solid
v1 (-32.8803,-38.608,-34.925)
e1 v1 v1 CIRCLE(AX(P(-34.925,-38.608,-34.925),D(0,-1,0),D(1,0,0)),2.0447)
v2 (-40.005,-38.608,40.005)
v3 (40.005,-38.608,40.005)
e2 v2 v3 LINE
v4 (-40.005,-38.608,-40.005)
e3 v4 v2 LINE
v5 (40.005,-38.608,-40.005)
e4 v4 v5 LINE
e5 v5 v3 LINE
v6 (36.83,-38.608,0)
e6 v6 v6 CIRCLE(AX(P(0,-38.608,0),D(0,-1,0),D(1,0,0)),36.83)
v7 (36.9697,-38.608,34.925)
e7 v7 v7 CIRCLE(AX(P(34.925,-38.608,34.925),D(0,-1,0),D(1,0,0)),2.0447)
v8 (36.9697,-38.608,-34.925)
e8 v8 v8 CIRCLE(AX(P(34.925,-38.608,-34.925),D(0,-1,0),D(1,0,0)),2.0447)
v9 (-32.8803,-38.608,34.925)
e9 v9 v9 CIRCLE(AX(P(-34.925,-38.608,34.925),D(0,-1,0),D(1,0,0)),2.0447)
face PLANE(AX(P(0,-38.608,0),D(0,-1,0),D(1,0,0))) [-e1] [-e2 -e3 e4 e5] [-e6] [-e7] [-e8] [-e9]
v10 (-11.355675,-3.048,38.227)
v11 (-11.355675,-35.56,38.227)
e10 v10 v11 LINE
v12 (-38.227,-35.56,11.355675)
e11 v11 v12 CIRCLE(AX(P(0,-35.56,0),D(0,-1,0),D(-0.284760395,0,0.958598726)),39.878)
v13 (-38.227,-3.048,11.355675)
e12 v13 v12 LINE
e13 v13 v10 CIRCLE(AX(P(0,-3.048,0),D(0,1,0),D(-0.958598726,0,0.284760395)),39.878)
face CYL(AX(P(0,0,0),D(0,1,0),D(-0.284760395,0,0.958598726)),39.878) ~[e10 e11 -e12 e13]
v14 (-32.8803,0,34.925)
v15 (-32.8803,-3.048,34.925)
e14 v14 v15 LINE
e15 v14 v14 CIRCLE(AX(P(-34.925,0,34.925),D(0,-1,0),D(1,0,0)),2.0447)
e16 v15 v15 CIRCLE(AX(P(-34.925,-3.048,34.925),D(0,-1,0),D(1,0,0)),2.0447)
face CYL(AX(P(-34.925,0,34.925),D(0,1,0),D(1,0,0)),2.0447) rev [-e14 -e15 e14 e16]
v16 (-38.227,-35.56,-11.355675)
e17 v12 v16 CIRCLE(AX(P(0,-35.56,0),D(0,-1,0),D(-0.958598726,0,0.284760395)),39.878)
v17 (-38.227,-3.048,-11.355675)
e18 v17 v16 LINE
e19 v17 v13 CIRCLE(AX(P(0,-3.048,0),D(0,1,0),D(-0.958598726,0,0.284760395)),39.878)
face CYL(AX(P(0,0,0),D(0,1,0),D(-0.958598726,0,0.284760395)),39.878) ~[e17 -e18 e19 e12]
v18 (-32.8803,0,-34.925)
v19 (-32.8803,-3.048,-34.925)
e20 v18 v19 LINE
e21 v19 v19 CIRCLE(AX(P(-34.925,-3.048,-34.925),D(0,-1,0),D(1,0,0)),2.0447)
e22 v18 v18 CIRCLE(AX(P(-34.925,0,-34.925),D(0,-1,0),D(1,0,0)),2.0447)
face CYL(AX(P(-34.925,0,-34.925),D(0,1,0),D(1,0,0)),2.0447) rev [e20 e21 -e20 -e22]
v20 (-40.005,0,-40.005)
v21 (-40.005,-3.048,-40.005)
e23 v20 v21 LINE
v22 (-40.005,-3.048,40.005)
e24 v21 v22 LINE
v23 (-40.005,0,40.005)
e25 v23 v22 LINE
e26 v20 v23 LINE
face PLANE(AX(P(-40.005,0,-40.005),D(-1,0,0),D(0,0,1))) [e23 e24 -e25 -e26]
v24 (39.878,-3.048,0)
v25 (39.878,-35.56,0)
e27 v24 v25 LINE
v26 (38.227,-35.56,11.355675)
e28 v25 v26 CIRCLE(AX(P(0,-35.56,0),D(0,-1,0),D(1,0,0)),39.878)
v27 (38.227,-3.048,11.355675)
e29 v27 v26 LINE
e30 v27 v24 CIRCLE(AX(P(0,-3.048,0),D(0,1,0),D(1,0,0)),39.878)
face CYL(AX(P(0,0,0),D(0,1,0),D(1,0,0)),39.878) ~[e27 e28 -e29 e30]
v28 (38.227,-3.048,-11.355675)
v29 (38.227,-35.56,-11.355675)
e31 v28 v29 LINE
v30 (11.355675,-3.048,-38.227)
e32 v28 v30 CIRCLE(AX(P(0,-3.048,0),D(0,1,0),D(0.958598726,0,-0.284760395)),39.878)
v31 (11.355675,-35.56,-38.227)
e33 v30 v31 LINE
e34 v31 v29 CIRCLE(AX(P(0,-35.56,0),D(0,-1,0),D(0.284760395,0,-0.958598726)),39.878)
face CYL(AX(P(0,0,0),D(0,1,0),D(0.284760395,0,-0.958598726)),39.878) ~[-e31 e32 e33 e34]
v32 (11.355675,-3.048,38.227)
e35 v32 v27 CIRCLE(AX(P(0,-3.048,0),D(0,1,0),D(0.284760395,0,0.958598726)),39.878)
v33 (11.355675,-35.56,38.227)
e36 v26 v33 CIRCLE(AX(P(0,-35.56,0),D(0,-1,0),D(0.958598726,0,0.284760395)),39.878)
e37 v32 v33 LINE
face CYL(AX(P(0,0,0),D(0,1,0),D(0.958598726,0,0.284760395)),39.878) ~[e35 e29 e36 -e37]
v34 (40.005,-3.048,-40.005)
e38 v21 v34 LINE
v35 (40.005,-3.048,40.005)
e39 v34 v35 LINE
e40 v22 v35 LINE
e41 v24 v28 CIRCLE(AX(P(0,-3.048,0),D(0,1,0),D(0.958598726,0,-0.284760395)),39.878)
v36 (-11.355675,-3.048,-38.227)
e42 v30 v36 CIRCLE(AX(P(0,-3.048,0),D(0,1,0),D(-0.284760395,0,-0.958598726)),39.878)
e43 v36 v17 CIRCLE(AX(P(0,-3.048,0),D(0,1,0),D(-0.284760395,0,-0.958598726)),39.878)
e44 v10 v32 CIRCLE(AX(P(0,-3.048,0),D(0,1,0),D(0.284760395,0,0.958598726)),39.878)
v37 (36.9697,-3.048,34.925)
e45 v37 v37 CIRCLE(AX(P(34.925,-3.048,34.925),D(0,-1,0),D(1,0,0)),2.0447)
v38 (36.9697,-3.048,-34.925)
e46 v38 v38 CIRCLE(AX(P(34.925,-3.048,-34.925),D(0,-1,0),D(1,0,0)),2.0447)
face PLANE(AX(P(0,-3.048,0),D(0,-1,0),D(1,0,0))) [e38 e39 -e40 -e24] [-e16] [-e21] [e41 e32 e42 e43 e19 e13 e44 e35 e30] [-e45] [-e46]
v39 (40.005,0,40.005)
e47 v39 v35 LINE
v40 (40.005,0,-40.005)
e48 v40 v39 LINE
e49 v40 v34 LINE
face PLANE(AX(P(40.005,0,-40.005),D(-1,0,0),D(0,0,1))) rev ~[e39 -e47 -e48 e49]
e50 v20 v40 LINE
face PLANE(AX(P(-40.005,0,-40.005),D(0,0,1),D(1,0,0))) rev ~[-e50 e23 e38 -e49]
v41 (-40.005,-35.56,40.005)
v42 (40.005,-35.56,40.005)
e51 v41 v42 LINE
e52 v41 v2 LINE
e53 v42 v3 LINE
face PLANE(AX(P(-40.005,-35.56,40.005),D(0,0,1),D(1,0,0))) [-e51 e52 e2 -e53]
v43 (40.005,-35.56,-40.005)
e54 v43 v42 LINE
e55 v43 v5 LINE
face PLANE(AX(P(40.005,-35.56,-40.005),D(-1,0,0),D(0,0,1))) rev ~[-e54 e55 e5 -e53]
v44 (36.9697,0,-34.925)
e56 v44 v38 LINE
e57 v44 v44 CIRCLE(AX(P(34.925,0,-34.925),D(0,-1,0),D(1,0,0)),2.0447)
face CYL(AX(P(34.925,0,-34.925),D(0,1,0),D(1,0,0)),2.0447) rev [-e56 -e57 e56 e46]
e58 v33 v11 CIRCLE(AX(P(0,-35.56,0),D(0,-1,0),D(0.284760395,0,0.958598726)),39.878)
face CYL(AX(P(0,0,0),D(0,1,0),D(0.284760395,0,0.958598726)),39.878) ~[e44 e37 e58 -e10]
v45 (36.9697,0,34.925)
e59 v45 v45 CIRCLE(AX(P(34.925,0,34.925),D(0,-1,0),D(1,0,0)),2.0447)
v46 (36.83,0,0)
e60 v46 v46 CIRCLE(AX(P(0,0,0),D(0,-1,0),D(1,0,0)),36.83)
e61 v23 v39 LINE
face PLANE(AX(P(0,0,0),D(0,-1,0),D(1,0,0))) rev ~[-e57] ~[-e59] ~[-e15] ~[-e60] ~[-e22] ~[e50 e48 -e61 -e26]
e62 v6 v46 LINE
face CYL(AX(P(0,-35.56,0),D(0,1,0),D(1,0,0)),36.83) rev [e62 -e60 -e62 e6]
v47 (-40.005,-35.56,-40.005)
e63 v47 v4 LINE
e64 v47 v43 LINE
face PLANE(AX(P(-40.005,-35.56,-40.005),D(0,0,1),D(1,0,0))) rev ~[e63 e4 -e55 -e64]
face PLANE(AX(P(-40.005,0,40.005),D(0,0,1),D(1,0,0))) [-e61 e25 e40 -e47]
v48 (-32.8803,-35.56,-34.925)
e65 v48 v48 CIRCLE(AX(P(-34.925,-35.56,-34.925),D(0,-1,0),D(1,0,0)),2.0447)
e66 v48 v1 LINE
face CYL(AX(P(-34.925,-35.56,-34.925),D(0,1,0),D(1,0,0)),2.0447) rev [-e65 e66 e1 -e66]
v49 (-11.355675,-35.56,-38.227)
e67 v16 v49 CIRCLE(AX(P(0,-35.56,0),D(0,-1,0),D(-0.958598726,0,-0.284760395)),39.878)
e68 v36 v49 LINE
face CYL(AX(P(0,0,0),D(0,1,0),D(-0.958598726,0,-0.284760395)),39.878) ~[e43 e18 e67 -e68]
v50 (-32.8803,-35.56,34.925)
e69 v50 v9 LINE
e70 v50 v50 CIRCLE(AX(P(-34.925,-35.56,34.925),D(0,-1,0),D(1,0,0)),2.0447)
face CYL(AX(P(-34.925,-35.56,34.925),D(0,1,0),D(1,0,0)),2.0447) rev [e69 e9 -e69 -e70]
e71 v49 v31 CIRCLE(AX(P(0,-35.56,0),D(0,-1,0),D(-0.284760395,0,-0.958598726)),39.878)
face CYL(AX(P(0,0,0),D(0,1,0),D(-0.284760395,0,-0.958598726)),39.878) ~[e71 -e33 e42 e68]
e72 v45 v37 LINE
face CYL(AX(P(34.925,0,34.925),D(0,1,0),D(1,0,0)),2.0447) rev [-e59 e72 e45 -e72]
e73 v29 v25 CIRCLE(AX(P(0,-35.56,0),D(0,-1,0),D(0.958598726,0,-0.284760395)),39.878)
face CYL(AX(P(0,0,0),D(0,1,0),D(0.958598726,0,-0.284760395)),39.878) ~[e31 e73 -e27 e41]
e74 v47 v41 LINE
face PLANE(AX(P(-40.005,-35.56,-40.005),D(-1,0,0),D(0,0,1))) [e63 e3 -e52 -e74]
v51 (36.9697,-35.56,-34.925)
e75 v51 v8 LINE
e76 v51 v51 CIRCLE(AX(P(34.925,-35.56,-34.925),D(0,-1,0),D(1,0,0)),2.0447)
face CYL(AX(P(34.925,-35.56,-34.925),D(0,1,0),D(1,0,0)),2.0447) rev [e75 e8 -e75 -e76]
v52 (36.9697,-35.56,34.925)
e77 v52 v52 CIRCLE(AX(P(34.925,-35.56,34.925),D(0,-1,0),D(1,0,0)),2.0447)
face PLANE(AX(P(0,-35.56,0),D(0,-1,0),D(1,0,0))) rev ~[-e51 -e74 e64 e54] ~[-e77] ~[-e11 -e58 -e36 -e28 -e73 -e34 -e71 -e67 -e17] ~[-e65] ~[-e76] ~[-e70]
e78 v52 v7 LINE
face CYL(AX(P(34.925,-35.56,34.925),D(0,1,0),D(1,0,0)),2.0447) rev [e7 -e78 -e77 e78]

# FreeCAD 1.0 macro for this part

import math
import FreeCAD as App
import Part
import Sketcher
from FreeCAD import Vector
Q = App.Units.Quantity


def add_polygon(sketch, points):
    """Adds a closed chain of lines whose ends are joined by coincident constraints."""
    first, n = sketch.GeometryCount, len(points)
    for a, b in zip(points, points[1:] + points[:1]):
        sketch.addGeometry(Part.LineSegment(App.Vector(*a, 0), App.Vector(*b, 0)), False)
    for i in range(n):
        sketch.addConstraint(Sketcher.Constraint("Coincident", first + i, 2, first + (i + 1) % n, 1))

doc = App.newDocument("Part")
body = doc.addObject("PartDesign::Body", "Body")

sketch1 = body.newObject("Sketcher::SketchObject", "Sketch")
sketch1.AttachmentSupport = (doc.getObject("XZ_Plane"), [""])
sketch1.MapMode = "FlatFace"
add_polygon(sketch1, [(-40, 40), (-40, -40), (40, -40), (40, 40)])
sketch1.addGeometry(Part.Circle(Vector(-34.9, -34.9, 0), Vector(0, 0, 1), 2), False)
sketch1.addGeometry(Part.Circle(Vector(34.9, -34.9, 0), Vector(0, 0, 1), 2), False)
sketch1.addGeometry(Part.Circle(Vector(-34.9, 34.9, 0), Vector(0, 0, 1), 2), False)
sketch1.addGeometry(Part.LineSegment(Vector(-11.4, 38.2, 0), Vector(11.4, 38.2, 0)), False)
sketch1.addGeometry(Part.ArcOfCircle(Part.Circle(Vector(0, 0, 0), Vector(0, 0, 1), 39.9), math.radians(17), math.radians(73)), False)
sketch1.addGeometry(Part.LineSegment(Vector(38.2, 11.4, 0), Vector(38.2, -11.4, 0)), False)
sketch1.addGeometry(Part.ArcOfCircle(Part.Circle(Vector(0, 0, 0), Vector(0, 0, 1), 39.9), math.radians(-73), math.radians(-17)), False)
sketch1.addGeometry(Part.LineSegment(Vector(11.4, -38.2, 0), Vector(-11.4, -38.2, 0)), False)
sketch1.addGeometry(Part.ArcOfCircle(Part.Circle(Vector(0, 0, 0), Vector(0, 0, 1), 39.9), math.radians(-163), math.radians(-107)), False)
sketch1.addGeometry(Part.LineSegment(Vector(-38.2, -11.4, 0), Vector(-38.2, 11.4, 0)), False)
sketch1.addGeometry(Part.ArcOfCircle(Part.Circle(Vector(0, 0, 0), Vector(0, 0, 1), 39.9), math.radians(107), math.radians(163)), False)
sketch1.addGeometry(Part.Circle(Vector(34.9, 34.9, 0), Vector(0, 0, 1), 2), False)
sketch1.addConstraint([
    Sketcher.Constraint("Coincident", 7, 2, 8, 2),
    Sketcher.Constraint("Coincident", 8, 1, 9, 1),
    Sketcher.Constraint("Coincident", 9, 2, 10, 2),
    Sketcher.Constraint("Coincident", 10, 1, 11, 1),
    Sketcher.Constraint("Coincident", 11, 2, 12, 2),
    Sketcher.Constraint("Coincident", 12, 1, 13, 1),
    Sketcher.Constraint("Coincident", 13, 2, 14, 2),
    Sketcher.Constraint("Coincident", 14, 1, 7, 1),
    Sketcher.Constraint("Vertical", 0),
    Sketcher.Constraint("Horizontal", 1),
    Sketcher.Constraint("Vertical", 2),
    Sketcher.Constraint("Horizontal", 3),
    Sketcher.Constraint("Horizontal", 7),
    Sketcher.Constraint("Vertical", 9),
    Sketcher.Constraint("Horizontal", 11),
    Sketcher.Constraint("Vertical", 13),
    Sketcher.Constraint("Coincident", 8, 3, -1, 1),
    Sketcher.Constraint("Coincident", 10, 3, -1, 1),
    Sketcher.Constraint("Coincident", 12, 3, -1, 1),
    Sketcher.Constraint("Coincident", 14, 3, -1, 1),
    Sketcher.Constraint("Equal", 4, 5),
    Sketcher.Constraint("Equal", 5, 6),
    Sketcher.Constraint("Equal", 8, 10),
    Sketcher.Constraint("Equal", 10, 12),
    Sketcher.Constraint("Equal", 12, 14),
    Sketcher.Constraint("Equal", 6, 15),
    Sketcher.Constraint("Symmetric", 5, 3, 6, 3, -1, 1),
    Sketcher.Constraint("Symmetric", 4, 3, 15, 3, -1, 1),
    Sketcher.Constraint("Symmetric", 0, 2, 2, 2, -1, 1),
    Sketcher.Constraint("Symmetric", 4, 3, 5, 3, -2),
    Sketcher.Constraint("Horizontal", 9, 2, 12, 1),
    Sketcher.Constraint("Vertical", 7, 2, 10, 1),
    Sketcher.Constraint("Equal", 3, 0),
    Sketcher.Constraint("Equal", 11, 9),
    Sketcher.Constraint("Radius", 8, Q("1.57 in")),
    Sketcher.Constraint("Diameter", 4, Q("0.161 in")),
    Sketcher.Constraint("DistanceX", 1, 1, 1, 2, Q("3.15 in")),
    Sketcher.Constraint("DistanceX", 0, 2, 4, 3, Q("0.2 in")),
    Sketcher.Constraint("DistanceY", 0, 2, 4, 3, Q("0.2 in")),
    Sketcher.Constraint("DistanceY", 15, 3, 7, 2, Q("0.13 in")),
])
pad1 = body.newObject("PartDesign::Pad", "Pad")
pad1.Profile = sketch1
pad1.Length = Q("0.12 in")

sketch2 = body.newObject("Sketcher::SketchObject", "Sketch001")
sketch2.AttachmentSupport = (doc.getObject("XZ_Plane"), [""])
sketch2.MapMode = "FlatFace"
sketch2.addGeometry([
    Part.ArcOfCircle(Part.Circle(Vector(0, 0, 0), Vector(0, 0, 1), 40), math.radians(17), math.radians(73)),
    Part.ArcOfCircle(Part.Circle(Vector(0, 0, 0), Vector(0, 0, 1), 40), math.radians(73), math.radians(107)),
    Part.ArcOfCircle(Part.Circle(Vector(0, 0, 0), Vector(0, 0, 1), 40), math.radians(107), math.radians(163)),
    Part.ArcOfCircle(Part.Circle(Vector(0, 0, 0), Vector(0, 0, 1), 40), math.radians(163), math.radians(197)),
    Part.ArcOfCircle(Part.Circle(Vector(0, 0, 0), Vector(0, 0, 1), 40), math.radians(-163), math.radians(-107)),
    Part.ArcOfCircle(Part.Circle(Vector(0, 0, 0), Vector(0, 0, 1), 40), math.radians(-107), math.radians(-73)),
    Part.ArcOfCircle(Part.Circle(Vector(0, 0, 0), Vector(0, 0, 1), 40), math.radians(-73), math.radians(-17)),
    Part.ArcOfCircle(Part.Circle(Vector(0, 0, 0), Vector(0, 0, 1), 40), math.radians(-16.54), math.radians(0)),
    Part.ArcOfCircle(Part.Circle(Vector(0, 0, 0), Vector(0, 0, 1), 40), math.radians(0), math.radians(16.54)),
    Part.Circle(Vector(0, 0, 0), Vector(0, 0, 1), 37),
], False)
sketch2.addConstraint([
    Sketcher.Constraint("Tangent", 0, 2, 1, 1),
    Sketcher.Constraint("Tangent", 1, 2, 2, 1),
    Sketcher.Constraint("Tangent", 2, 2, 3, 1),
    Sketcher.Constraint("Tangent", 3, 2, 4, 1),
    Sketcher.Constraint("Tangent", 4, 2, 5, 1),
    Sketcher.Constraint("Tangent", 5, 2, 6, 1),
    Sketcher.Constraint("Tangent", 6, 2, 7, 1),
    Sketcher.Constraint("Tangent", 7, 2, 8, 1),
    Sketcher.Constraint("Tangent", 8, 2, 0, 1),
    Sketcher.Constraint("Coincident", 0, 3, -1, 1),
    Sketcher.Constraint("Coincident", 2, 3, -1, 1),
    Sketcher.Constraint("Coincident", 4, 3, -1, 1),
    Sketcher.Constraint("Coincident", 6, 3, -1, 1),
    Sketcher.Constraint("Coincident", 9, 3, -1, 1),
    Sketcher.Constraint("PointOnObject", 7, 2, -1),
    Sketcher.Constraint("Horizontal", 0, 2, 1, 2),
    Sketcher.Constraint("Horizontal", 4, 2, 5, 2),
    Sketcher.Constraint("Horizontal", 3, 2, 6, 2),
    Sketcher.Constraint("Horizontal", 2, 2, 8, 2),
    Sketcher.Constraint("Vertical", 2, 2, 3, 2),
    Sketcher.Constraint("Vertical", 1, 2, 4, 2),
    Sketcher.Constraint("Diameter", 9, Q("2.9 in")),
    Sketcher.Constraint("Radius", 0, Q("1.57 in")),
    Sketcher.Constraint("DistanceY", -1, 1, 0, 2, Q("1.505 in")),
    Sketcher.Constraint("DistanceX", 2, 2, -1, 1, Q("1.505 in")),
])
pad2 = body.newObject("PartDesign::Pad", "Pad001")
pad2.Profile = sketch2
pad2.Length = Q("1.4 in")

sketch3 = body.newObject("Sketcher::SketchObject", "Sketch002")
sketch3.AttachmentSupport = (doc.getObject("XZ_Plane"), [""])
sketch3.MapMode = "FlatFace"
sketch3.AttachmentOffset = App.Placement(Vector(0, 0, 1.4 * 25.4), App.Rotation())
add_polygon(sketch3, [(-40, 40), (-40, -40), (40, -40), (40, 40)])
sketch3.addGeometry(Part.Circle(Vector(-34.9, -34.9, 0), Vector(0, 0, 1), 2), False)
sketch3.addGeometry(Part.Circle(Vector(34.9, -34.9, 0), Vector(0, 0, 1), 2), False)
sketch3.addGeometry(Part.Circle(Vector(-34.9, 34.9, 0), Vector(0, 0, 1), 2), False)
sketch3.addGeometry(Part.Circle(Vector(0, 0, 0), Vector(0, 0, 1), 36.8), False)
sketch3.addGeometry(Part.Circle(Vector(34.9, 34.9, 0), Vector(0, 0, 1), 2), False)
sketch3.addConstraint([
    Sketcher.Constraint("Vertical", 0),
    Sketcher.Constraint("Horizontal", 1),
    Sketcher.Constraint("Vertical", 2),
    Sketcher.Constraint("Horizontal", 3),
    Sketcher.Constraint("Coincident", 7, 3, -1, 1),
    Sketcher.Constraint("Equal", 4, 5),
    Sketcher.Constraint("Equal", 5, 6),
    Sketcher.Constraint("Equal", 6, 8),
    Sketcher.Constraint("Symmetric", 5, 3, 6, 3, -1, 1),
    Sketcher.Constraint("Symmetric", 4, 3, 8, 3, -1, 1),
    Sketcher.Constraint("Symmetric", 0, 2, 2, 2, -1, 1),
    Sketcher.Constraint("Symmetric", 4, 3, 5, 3, -2),
    Sketcher.Constraint("Equal", 3, 0),
    Sketcher.Constraint("Diameter", 7, Q("2.9 in")),
    Sketcher.Constraint("Diameter", 4, Q("0.161 in")),
    Sketcher.Constraint("DistanceX", 1, 1, 1, 2, Q("3.15 in")),
    Sketcher.Constraint("DistanceX", 0, 2, 4, 3, Q("0.2 in")),
    Sketcher.Constraint("DistanceY", 0, 2, 4, 3, Q("0.2 in")),
])
pad3 = body.newObject("PartDesign::Pad", "Pad002")
pad3.Profile = sketch3
pad3.Length = Q("0.12 in")

doc.recompute()
